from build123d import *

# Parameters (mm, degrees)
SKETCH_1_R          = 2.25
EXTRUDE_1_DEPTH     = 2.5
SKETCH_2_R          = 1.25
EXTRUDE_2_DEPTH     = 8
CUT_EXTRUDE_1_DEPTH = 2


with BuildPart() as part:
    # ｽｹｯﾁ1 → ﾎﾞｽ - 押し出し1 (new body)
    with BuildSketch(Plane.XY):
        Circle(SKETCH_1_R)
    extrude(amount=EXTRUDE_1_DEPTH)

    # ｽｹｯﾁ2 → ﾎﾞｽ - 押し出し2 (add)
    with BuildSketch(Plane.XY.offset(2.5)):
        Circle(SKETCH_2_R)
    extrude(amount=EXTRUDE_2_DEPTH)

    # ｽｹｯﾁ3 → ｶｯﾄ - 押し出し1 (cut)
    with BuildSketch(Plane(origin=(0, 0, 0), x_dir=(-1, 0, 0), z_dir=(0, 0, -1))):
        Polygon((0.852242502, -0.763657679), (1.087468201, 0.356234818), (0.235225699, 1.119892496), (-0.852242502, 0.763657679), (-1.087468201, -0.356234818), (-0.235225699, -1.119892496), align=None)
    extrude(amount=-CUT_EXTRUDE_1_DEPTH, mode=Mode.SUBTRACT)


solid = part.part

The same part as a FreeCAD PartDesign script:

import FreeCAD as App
import Part
import Sketcher
from FreeCAD import Vector
Q = App.Units.Quantity

doc = App.newDocument("Part")
body = doc.addObject("PartDesign::Body", "Body")

sketch1 = body.newObject("Sketcher::SketchObject", "Sketch")
sketch1.AttachmentSupport = (doc.getObject("XY_Plane"), [""])
sketch1.MapMode = "FlatFace"
sketch1.addGeometry(Part.Circle(Vector(0, 0, 0), Vector(0, 0, 1), 2.2), False)
sketch1.addConstraint(Sketcher.Constraint("Coincident", 0, 3, -1, 1))
sketch1.addConstraint(Sketcher.Constraint("Diameter", 0, Q("4.5 mm")))
pad1 = body.newObject("PartDesign::Pad", "Pad")
pad1.Profile = sketch1
pad1.Length = 2.5

sketch2 = body.newObject("Sketcher::SketchObject", "Sketch001")
sketch2.AttachmentSupport = (doc.getObject("XY_Plane"), [""])
sketch2.MapMode = "FlatFace"
sketch2.AttachmentOffset = App.Placement(Vector(0, 0, 2.5), App.Rotation())
sketch2.addGeometry(Part.Circle(Vector(0, 0, 0), Vector(0, 0, 1), 1.2), False)
sketch2.addConstraint(Sketcher.Constraint("Coincident", 0, 3, -1, 1))
sketch2.addConstraint(Sketcher.Constraint("Diameter", 0, Q("2.5 mm")))
pad2 = body.newObject("PartDesign::Pad", "Pad001")
pad2.Profile = sketch2
pad2.Length = 8

sketch3 = body.newObject("Sketcher::SketchObject", "Sketch002")
sketch3.AttachmentSupport = (doc.getObject("XY_Plane"), [""])
sketch3.MapMode = "FlatFace"
sketch3.addGeometry(Part.LineSegment(Vector(-0.9, -0.8, 0), Vector(-1.1, 0.4, 0)), False)
sketch3.addGeometry(Part.LineSegment(Vector(-1.1, 0.4, 0), Vector(-0.2, 1.1, 0)), False)
sketch3.addGeometry(Part.LineSegment(Vector(-0.2, 1.1, 0), Vector(0.9, 0.8, 0)), False)
sketch3.addGeometry(Part.LineSegment(Vector(0.9, 0.8, 0), Vector(1.1, -0.4, 0)), False)
sketch3.addGeometry(Part.LineSegment(Vector(1.1, -0.4, 0), Vector(0.2, -1.1, 0)), False)
sketch3.addGeometry(Part.LineSegment(Vector(0.2, -1.1, 0), Vector(-0.9, -0.8, 0)), False)
sketch3.addConstraint(Sketcher.Constraint("Coincident", 0, 2, 1, 1))
sketch3.addConstraint(Sketcher.Constraint("Coincident", 1, 2, 2, 1))
sketch3.addConstraint(Sketcher.Constraint("Coincident", 2, 2, 3, 1))
sketch3.addConstraint(Sketcher.Constraint("Coincident", 3, 2, 4, 1))
sketch3.addConstraint(Sketcher.Constraint("Coincident", 4, 2, 5, 1))
sketch3.addConstraint(Sketcher.Constraint("Coincident", 5, 2, 0, 1))
sketch3.addConstraint(Sketcher.Constraint("Symmetric", 0, 2, 3, 2, -1, 1))
sketch3.addConstraint(Sketcher.Constraint("Symmetric", 1, 2, 4, 2, -1, 1))
sketch3.addConstraint(Sketcher.Constraint("Symmetric", 2, 2, 5, 2, -1, 1))
sketch3.addConstraint(Sketcher.Constraint("Equal", 0, 1))
sketch3.addConstraint(Sketcher.Constraint("Equal", 1, 2))
sketch3.addConstraint(Sketcher.Constraint("Distance", 0, Q("1.14433 mm")))
sketch3.addConstraint(Sketcher.Constraint("DistanceX", 0, 2, -1, 1, Q("1.087468 mm")))
sketch3.addConstraint(Sketcher.Constraint("DistanceX", 1, 2, 2, 2, Q("1.087468 mm")))
sketch3.addConstraint(Sketcher.Constraint("DistanceX", 0, 2, 2, 2, Q("1.939711 mm")))
pocket1 = body.newObject("PartDesign::Pocket", "Pocket")
pocket1.Profile = sketch3
pocket1.Length = 2
pocket1.Reversed = True

doc.recompute()
